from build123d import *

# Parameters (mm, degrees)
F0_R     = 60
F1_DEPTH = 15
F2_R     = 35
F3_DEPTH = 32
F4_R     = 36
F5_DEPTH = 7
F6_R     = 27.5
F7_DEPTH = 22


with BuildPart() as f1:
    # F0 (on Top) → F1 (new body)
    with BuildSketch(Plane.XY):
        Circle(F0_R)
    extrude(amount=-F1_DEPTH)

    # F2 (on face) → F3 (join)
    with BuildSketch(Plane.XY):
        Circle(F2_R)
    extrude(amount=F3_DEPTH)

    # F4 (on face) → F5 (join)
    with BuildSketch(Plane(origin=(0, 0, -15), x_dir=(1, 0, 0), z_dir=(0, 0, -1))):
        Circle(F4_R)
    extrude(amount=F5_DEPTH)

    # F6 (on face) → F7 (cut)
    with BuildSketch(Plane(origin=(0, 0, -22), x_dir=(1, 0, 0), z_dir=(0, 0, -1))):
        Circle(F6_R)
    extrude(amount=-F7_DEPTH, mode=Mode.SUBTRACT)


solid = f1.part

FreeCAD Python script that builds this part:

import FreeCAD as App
import Part
import Sketcher

doc = App.newDocument("Part")
body = doc.addObject("PartDesign::Body", "Body")

sketch1 = body.newObject("Sketcher::SketchObject", "Sketch")
sketch1.AttachmentSupport = (doc.getObject("XY_Plane"), [""])
sketch1.MapMode = "FlatFace"
sketch1.addGeometry(Part.Circle(App.Vector(0, 0, 0), App.Vector(0, 0, 1), 60), False)
sketch1.addConstraint(Sketcher.Constraint("Coincident", 0, 3, -1, 1))
sketch1.addConstraint(Sketcher.Constraint("Diameter", 0, 120.0))
pad1 = body.newObject("PartDesign::Pad", "Pad")
pad1.Profile = sketch1
pad1.Length = 15
pad1.Reversed = True

sketch2 = body.newObject("Sketcher::SketchObject", "Sketch001")
sketch2.AttachmentSupport = (doc.getObject("XY_Plane"), [""])
sketch2.MapMode = "FlatFace"
sketch2.addGeometry(Part.Circle(App.Vector(0, 0, 0), App.Vector(0, 0, 1), 35), False)
sketch2.addConstraint(Sketcher.Constraint("Coincident", 0, 3, -1, 1))
sketch2.addConstraint(Sketcher.Constraint("Diameter", 0, 70.0))
pad2 = body.newObject("PartDesign::Pad", "Pad001")
pad2.Profile = sketch2
pad2.Length = 32

sketch3 = body.newObject("Sketcher::SketchObject", "Sketch002")
sketch3.AttachmentSupport = (doc.getObject("XY_Plane"), [""])
sketch3.MapMode = "FlatFace"
sketch3.AttachmentOffset = App.Placement(App.Vector(0, 0, -15), App.Rotation())
sketch3.addGeometry(Part.Circle(App.Vector(0, 0, 0), App.Vector(0, 0, 1), 36), False)
sketch3.addConstraint(Sketcher.Constraint("Coincident", 0, 3, -1, 1))
sketch3.addConstraint(Sketcher.Constraint("Diameter", 0, 72.0))
pad3 = body.newObject("PartDesign::Pad", "Pad002")
pad3.Profile = sketch3
pad3.Length = 7
pad3.Reversed = True

sketch4 = body.newObject("Sketcher::SketchObject", "Sketch003")
sketch4.AttachmentSupport = (doc.getObject("XY_Plane"), [""])
sketch4.MapMode = "FlatFace"
sketch4.AttachmentOffset = App.Placement(App.Vector(0, 0, -22), App.Rotation())
sketch4.addGeometry(Part.Circle(App.Vector(0, 0, 0), App.Vector(0, 0, 1), 27.5), False)
sketch4.addConstraint(Sketcher.Constraint("Coincident", 0, 3, -1, 1))
sketch4.addConstraint(Sketcher.Constraint("Diameter", 0, 55.0))
pocket1 = body.newObject("PartDesign::Pocket", "Pocket")
pocket1.Profile = sketch4
pocket1.Length = 22
pocket1.Reversed = True

doc.recompute()
